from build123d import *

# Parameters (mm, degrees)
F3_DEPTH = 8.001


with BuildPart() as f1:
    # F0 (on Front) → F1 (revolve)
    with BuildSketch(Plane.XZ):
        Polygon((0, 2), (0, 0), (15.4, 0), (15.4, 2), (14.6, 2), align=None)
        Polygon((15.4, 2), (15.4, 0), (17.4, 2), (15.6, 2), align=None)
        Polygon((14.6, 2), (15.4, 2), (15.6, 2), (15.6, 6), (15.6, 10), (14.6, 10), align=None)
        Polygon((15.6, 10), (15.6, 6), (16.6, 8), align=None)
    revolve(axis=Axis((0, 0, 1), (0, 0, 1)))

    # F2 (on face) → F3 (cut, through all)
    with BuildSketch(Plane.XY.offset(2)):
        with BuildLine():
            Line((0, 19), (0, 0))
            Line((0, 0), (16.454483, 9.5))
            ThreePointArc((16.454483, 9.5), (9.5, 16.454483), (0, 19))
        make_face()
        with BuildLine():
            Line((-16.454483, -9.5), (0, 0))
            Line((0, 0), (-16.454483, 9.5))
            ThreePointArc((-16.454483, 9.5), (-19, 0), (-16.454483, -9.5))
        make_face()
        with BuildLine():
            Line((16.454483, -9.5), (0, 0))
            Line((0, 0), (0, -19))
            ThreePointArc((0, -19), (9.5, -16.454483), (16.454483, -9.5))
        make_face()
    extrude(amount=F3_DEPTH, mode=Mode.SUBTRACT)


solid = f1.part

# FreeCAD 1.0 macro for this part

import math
import FreeCAD as App
import Part
import Sketcher
from FreeCAD import Vector
Q = App.Units.Quantity


def add_polygon(sketch, points):
    """Adds a closed chain of lines whose ends are joined by coincident constraints."""
    first, n = sketch.GeometryCount, len(points)
    for a, b in zip(points, points[1:] + points[:1]):
        sketch.addGeometry(Part.LineSegment(App.Vector(*a, 0), App.Vector(*b, 0)), False)
    for i in range(n):
        sketch.addConstraint(Sketcher.Constraint("Coincident", first + i, 2, first + (i + 1) % n, 1))

doc = App.newDocument("Part")
body = doc.addObject("PartDesign::Body", "Body")

# Sketch on XZ plane
sketch1 = doc.addObject("Sketcher::SketchObject", "Sketch")
body.addObject(sketch1)
sketch1.AttachmentSupport = (doc.XZ_Plane, [""])
sketch1.MapMode = "FlatFace"
add_polygon(sketch1, [(0, 2), (0, 0), (15.4, 0), (17.4, 2), (15.6, 2), (15.6, 6), (16.6, 8), (15.6, 10), (14.6, 10), (14.6, 2)])  # lines 0-9
sketch1.addConstraint([
    Sketcher.Constraint("Vertical", 0),
    Sketcher.Constraint("Horizontal", 1),
    Sketcher.Constraint("Horizontal", 3),
    Sketcher.Constraint("Vertical", 4),
    Sketcher.Constraint("Horizontal", 7),
    Sketcher.Constraint("Vertical", 8),
    Sketcher.Constraint("Horizontal", 9),
    Sketcher.Constraint("Coincident", 0, 2, -1, 1),
    Sketcher.Constraint("Horizontal", 3, 2, 8, 2),
    Sketcher.Constraint("Vertical", 4, 2, 6, 2),
    Sketcher.Constraint("Equal", 5, 6),
    Sketcher.Constraint("DistanceX", 7, 2, 7, 1, 1.0),
    Sketcher.Constraint("DistanceY", 0, 2, 0, 1, 2.0),
    Sketcher.Constraint("DistanceY", 4, 1, 4, 2, 4.0),
    Sketcher.Constraint("DistanceY", 8, 2, 8, 1, 8.0),
    Sketcher.Constraint("Angle", 2, Q("45 deg")),
    Sketcher.Constraint("DistanceX", 1, 1, 1, 2, 15.4),
    Sketcher.Constraint("DistanceX", 3, 2, 3, 1, 1.8),
    Sketcher.Constraint("DistanceX", 4, 2, 5, 2, 1.0),
])
revolution = doc.addObject("PartDesign::Revolution", "Revolution")
body.addObject(revolution)
revolution.Profile = sketch1
revolution.ReferenceAxis = (sketch1, ["V_Axis"])
revolution.Angle = 360

# Sketch on XY plane
sketch2 = doc.addObject("Sketcher::SketchObject", "Sketch001")
body.addObject(sketch2)
sketch2.AttachmentSupport = (doc.XY_Plane, [""])
sketch2.MapMode = "FlatFace"
sketch2.AttachmentOffset = App.Placement(Vector(0, 0, 2), App.Rotation())
sketch2.addGeometry([
    Part.LineSegment(Vector(0, 19, 0), Vector(0, 0, 0)),  # 0
    Part.LineSegment(Vector(0, 0, 0), Vector(16, 10, 0)),  # 1
    Part.ArcOfCircle(Part.Circle(Vector(0, 0, 0), Vector(0, 0, 1), 19), math.radians(30), math.radians(90)),  # 2
    Part.LineSegment(Vector(-16, -10, 0), Vector(0, 0, 0)),  # 3
    Part.LineSegment(Vector(0, 0, 0), Vector(-16, 10, 0)),  # 4
    Part.ArcOfCircle(Part.Circle(Vector(0, 0, 0), Vector(0, 0, 1), 19), math.radians(150), math.radians(210)),  # 5
    Part.LineSegment(Vector(16, -10, 0), Vector(0, 0, 0)),  # 6
    Part.LineSegment(Vector(0, 0, 0), Vector(0, -19, 0)),  # 7
    Part.ArcOfCircle(Part.Circle(Vector(0, 0, 0), Vector(0, 0, 1), 19), math.radians(-90), math.radians(-30)),  # 8
], False)
sketch2.addConstraint([
    Sketcher.Constraint("Coincident", 0, 2, 1, 1),
    Sketcher.Constraint("Coincident", 1, 2, 2, 1),
    Sketcher.Constraint("Coincident", 2, 2, 0, 1),
    Sketcher.Constraint("Coincident", 3, 2, 4, 1),
    Sketcher.Constraint("Coincident", 4, 2, 5, 1),
    Sketcher.Constraint("Coincident", 5, 2, 3, 1),
    Sketcher.Constraint("Coincident", 6, 2, 7, 1),
    Sketcher.Constraint("Coincident", 7, 2, 8, 1),
    Sketcher.Constraint("Coincident", 8, 2, 6, 1),
    Sketcher.Constraint("Vertical", 0),
    Sketcher.Constraint("Vertical", 7),
    Sketcher.Constraint("Coincident", 2, 3, -1, 1),
    Sketcher.Constraint("Coincident", 5, 3, -1, 1),
    Sketcher.Constraint("Coincident", 8, 3, -1, 1),
    Sketcher.Constraint("Coincident", 0, 2, -1, 1),
    Sketcher.Constraint("Coincident", 3, 2, -1, 1),
    Sketcher.Constraint("Coincident", 6, 2, -1, 1),
    Sketcher.Constraint("Equal", 2, 8),
    Sketcher.Constraint("Symmetric", 1, 2, 5, 2, -1, 1),
    Sketcher.Constraint("Parallel", 4, 6),
    Sketcher.Constraint("Horizontal", 1, 2, 4, 2),
    Sketcher.Constraint("Radius", 2, 18.999999),
    Sketcher.Constraint("Angle", 1, Q("30 deg")),
])
pocket1 = doc.addObject("PartDesign::Pocket", "Pocket")
body.addObject(pocket1)
pocket1.Profile = sketch2
pocket1.Type = "ThroughAll"
pocket1.Reversed = True

doc.recompute()
